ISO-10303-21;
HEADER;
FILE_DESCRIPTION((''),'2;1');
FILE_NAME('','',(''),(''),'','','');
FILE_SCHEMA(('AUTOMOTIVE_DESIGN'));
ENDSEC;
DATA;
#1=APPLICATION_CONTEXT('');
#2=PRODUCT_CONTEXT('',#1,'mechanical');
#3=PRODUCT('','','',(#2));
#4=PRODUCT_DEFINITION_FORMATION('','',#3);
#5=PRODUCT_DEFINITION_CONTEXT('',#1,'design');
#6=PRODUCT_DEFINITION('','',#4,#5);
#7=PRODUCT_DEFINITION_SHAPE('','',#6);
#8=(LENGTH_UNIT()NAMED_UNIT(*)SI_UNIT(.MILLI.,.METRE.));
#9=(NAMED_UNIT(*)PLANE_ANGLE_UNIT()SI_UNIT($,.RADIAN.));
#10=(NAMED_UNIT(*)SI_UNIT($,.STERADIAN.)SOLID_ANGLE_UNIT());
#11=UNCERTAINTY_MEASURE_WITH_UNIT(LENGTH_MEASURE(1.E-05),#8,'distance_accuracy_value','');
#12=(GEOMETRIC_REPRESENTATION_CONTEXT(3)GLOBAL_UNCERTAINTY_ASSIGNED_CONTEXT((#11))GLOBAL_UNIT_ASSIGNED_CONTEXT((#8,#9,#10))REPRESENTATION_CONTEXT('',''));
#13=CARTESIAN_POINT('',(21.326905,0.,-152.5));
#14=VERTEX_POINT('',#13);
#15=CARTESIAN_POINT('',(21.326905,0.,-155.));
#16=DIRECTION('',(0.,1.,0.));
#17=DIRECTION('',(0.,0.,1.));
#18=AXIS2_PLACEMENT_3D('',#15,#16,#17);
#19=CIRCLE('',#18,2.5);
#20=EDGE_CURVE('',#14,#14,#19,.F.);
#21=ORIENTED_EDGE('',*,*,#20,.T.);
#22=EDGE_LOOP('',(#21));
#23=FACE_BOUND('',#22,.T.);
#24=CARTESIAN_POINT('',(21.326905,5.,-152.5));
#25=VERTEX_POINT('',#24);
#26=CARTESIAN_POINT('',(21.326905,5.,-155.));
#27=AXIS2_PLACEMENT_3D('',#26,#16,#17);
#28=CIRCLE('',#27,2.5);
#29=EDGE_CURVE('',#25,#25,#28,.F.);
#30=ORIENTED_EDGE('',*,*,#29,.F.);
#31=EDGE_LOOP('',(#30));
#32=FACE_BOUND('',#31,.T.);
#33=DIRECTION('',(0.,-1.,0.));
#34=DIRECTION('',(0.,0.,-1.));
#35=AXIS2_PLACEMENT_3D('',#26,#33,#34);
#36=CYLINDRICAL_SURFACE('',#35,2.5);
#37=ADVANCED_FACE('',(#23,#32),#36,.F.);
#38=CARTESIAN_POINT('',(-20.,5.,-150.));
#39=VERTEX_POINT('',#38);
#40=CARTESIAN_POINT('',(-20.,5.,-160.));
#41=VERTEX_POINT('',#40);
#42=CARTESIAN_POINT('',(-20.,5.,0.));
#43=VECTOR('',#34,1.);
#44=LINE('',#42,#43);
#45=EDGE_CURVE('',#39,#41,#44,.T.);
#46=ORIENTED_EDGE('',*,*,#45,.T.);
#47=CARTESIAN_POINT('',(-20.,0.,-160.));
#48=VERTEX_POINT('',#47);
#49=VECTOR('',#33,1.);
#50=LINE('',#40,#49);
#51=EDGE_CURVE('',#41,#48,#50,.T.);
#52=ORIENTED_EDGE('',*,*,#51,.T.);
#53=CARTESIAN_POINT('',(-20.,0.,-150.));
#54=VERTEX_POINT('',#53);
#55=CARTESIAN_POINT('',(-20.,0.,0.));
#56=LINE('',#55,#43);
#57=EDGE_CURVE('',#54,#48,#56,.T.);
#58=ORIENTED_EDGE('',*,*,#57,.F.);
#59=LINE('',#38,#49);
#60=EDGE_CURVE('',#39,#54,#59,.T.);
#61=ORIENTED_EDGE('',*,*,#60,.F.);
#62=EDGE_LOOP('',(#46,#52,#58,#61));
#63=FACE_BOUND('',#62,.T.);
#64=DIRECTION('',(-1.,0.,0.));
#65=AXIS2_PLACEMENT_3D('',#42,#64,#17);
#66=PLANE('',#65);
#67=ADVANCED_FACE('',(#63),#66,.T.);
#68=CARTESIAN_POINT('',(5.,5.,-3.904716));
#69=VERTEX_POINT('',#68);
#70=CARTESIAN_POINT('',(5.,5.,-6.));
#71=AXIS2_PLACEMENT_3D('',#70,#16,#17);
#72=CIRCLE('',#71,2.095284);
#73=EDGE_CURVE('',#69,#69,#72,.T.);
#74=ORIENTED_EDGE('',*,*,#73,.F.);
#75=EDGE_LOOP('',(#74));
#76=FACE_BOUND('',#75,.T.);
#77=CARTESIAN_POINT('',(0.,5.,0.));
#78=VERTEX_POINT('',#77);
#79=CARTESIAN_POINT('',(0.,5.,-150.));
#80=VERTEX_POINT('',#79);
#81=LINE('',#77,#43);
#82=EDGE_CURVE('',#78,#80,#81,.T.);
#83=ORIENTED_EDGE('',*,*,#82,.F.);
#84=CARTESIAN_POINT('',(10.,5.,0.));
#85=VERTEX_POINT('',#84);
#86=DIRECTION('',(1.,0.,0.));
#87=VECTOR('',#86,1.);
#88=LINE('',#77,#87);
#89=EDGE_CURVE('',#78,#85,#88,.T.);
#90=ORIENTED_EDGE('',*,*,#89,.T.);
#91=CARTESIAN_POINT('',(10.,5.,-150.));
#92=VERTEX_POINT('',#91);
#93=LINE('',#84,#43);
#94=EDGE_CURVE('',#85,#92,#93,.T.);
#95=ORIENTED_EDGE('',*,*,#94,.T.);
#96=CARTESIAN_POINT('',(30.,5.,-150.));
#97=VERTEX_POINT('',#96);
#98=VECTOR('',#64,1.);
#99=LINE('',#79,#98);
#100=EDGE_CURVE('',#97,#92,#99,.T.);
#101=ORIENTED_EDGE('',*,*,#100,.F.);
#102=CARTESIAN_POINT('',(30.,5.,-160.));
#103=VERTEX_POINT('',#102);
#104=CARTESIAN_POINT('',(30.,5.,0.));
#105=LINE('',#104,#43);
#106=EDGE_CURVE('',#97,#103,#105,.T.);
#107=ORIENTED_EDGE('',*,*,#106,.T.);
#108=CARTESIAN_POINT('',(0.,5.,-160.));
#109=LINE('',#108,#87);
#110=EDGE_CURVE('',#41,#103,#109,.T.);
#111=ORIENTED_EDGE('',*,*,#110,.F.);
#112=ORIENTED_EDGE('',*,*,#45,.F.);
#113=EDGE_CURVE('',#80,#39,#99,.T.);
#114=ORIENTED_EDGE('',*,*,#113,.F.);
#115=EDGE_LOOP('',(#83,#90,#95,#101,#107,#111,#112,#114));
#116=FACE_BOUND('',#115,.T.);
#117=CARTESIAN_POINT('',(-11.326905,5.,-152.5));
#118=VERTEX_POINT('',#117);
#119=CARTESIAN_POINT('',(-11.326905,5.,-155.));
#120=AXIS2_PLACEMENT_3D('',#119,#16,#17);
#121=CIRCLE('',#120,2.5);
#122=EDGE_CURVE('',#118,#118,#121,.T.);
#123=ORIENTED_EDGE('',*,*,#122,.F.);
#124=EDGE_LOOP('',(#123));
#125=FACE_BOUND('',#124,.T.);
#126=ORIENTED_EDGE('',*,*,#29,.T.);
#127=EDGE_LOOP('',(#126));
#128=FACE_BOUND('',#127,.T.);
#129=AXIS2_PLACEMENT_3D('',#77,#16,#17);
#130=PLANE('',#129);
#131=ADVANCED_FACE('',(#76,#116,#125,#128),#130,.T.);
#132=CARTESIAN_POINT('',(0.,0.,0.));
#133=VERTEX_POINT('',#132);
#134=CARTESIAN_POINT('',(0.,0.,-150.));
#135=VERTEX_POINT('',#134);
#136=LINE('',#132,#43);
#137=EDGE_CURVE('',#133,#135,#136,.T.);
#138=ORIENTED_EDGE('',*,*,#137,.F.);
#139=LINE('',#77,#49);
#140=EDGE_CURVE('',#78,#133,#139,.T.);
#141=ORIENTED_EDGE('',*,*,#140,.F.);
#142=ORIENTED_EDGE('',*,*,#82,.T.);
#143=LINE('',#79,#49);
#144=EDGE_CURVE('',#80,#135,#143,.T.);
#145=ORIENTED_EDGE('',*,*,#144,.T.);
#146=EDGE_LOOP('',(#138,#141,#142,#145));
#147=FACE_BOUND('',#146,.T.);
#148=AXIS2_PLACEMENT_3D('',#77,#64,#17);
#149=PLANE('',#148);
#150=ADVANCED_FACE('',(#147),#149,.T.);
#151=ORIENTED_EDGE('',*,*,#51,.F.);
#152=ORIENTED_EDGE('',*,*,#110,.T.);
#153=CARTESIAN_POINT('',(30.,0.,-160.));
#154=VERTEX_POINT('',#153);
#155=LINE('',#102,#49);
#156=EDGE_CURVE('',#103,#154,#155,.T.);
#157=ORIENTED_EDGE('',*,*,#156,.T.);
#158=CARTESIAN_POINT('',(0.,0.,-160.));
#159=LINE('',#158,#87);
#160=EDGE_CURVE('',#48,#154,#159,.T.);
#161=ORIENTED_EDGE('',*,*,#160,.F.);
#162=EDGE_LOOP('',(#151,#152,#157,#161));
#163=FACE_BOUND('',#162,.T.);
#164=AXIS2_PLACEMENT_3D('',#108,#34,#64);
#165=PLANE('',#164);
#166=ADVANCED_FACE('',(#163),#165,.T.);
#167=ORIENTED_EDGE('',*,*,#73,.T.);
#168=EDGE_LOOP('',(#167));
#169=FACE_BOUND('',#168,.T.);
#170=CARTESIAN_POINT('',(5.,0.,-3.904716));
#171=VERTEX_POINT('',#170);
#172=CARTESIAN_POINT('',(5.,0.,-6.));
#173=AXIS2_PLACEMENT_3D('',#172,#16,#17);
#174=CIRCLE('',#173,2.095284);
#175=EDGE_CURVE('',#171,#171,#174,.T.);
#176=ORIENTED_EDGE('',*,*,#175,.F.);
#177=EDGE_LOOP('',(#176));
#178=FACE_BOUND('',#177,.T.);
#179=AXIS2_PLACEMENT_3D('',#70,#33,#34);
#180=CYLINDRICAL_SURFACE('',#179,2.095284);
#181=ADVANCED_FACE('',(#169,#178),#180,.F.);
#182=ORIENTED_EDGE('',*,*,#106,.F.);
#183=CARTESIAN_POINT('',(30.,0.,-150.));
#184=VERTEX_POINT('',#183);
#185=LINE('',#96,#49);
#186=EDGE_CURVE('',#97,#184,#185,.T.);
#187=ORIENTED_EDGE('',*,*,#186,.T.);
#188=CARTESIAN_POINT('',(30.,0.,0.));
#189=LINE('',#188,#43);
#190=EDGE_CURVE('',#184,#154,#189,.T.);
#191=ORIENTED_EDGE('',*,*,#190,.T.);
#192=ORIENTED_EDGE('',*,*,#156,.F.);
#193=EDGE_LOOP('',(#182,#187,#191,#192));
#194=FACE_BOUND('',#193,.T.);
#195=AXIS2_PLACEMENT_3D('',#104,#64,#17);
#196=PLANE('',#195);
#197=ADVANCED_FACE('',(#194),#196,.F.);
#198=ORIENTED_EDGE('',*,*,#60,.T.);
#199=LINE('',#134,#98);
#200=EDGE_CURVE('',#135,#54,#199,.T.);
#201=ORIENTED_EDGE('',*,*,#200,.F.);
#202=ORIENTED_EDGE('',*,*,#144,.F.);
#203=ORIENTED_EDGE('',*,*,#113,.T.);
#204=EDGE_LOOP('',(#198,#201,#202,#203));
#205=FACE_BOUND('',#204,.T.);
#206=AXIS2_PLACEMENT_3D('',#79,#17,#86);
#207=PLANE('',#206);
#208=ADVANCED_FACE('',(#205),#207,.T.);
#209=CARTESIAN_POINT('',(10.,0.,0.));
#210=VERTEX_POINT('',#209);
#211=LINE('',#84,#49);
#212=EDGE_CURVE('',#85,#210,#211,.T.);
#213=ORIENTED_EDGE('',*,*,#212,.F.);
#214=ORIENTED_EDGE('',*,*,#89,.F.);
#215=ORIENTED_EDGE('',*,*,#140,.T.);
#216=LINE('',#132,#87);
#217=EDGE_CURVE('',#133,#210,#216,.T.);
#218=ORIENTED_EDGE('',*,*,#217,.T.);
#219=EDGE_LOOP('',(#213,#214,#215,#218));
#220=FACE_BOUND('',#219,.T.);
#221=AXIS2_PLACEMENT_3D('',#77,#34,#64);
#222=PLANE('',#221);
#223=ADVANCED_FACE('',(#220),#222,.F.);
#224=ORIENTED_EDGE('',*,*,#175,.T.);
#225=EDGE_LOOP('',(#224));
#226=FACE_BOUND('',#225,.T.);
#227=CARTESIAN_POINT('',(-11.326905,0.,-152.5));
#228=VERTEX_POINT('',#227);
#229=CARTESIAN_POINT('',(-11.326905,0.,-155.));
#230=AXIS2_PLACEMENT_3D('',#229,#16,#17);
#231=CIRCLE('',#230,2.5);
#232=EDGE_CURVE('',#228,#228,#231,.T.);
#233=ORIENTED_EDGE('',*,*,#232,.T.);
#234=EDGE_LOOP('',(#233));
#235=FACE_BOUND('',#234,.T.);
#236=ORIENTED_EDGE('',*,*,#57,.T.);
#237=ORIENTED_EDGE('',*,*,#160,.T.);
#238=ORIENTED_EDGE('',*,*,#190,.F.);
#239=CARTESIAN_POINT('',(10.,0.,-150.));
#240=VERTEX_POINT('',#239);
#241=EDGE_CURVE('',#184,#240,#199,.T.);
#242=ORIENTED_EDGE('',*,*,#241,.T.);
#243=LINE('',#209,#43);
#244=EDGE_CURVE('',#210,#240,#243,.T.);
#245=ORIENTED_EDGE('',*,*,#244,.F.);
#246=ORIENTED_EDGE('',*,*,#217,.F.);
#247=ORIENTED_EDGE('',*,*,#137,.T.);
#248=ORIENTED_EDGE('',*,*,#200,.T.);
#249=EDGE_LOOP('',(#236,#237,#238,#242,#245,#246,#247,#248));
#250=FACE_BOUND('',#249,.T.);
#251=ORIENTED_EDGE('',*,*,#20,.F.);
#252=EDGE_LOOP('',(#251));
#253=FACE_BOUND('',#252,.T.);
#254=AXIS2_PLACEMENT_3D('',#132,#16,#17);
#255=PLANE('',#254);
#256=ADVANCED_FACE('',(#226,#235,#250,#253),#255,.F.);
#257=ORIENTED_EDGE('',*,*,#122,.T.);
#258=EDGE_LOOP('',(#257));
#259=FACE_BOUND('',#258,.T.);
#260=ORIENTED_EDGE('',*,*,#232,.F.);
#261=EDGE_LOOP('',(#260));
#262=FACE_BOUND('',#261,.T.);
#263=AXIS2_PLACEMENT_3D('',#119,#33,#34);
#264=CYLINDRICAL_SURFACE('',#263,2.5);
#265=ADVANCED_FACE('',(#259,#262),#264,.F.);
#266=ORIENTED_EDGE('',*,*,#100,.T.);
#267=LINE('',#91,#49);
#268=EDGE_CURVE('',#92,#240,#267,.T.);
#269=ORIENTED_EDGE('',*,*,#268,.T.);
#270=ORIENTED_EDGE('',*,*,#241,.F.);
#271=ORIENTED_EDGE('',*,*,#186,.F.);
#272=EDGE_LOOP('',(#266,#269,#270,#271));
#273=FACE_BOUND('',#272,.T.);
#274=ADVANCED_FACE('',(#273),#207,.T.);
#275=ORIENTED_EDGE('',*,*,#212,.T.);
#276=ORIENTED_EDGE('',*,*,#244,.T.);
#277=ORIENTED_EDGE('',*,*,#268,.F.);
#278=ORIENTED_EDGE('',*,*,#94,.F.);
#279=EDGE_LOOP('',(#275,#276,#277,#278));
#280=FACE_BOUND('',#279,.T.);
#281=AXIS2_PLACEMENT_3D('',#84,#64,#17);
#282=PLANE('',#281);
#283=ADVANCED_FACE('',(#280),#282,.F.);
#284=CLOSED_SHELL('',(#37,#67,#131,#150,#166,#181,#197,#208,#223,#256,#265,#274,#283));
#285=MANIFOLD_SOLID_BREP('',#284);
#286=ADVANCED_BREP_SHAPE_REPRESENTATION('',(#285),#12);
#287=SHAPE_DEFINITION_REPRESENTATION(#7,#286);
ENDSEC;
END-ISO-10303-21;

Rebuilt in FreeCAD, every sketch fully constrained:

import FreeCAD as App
import Part
import Sketcher

V = App.Vector


def add_polygon(sketch, points):
    """Adds a closed chain of lines whose ends are joined by coincident constraints."""
    first, n = sketch.GeometryCount, len(points)
    for a, b in zip(points, points[1:] + points[:1]):
        sketch.addGeometry(Part.LineSegment(App.Vector(*a, 0), App.Vector(*b, 0)), False)
    for i in range(n):
        sketch.addConstraint(Sketcher.Constraint("Coincident", first + i, 2, first + (i + 1) % n, 1))

doc = App.newDocument("Part")
params = doc.addObject("Spreadsheet::Sheet", "Params")
for row, (alias, value) in enumerate([
    ("sketch1_diameter", "5 mm"),
    ("sketch1_width", "10 mm"),
    ("sketch1_width2", "20 mm"),
    ("sketch1_height", "150 mm"),
    ("pad1_length", "5 mm"),
], start=1):
    params.set(f"A{row}", alias)
    params.set(f"B{row}", "=" + value)
    params.setAlias(f"B{row}", alias)

body = doc.addObject("PartDesign::Body", "Body")

sketch1 = body.newObject("Sketcher::SketchObject", "Sketch")
sketch1.AttachmentSupport = (doc.getObject("XZ_Plane"), [""])
sketch1.MapMode = "FlatFace"
add_polygon(sketch1, [(0, -150), (0, 0), (10, 0), (10, -150), (30, -150), (30, -160), (-20, -160), (-20, -150)])
sketch1.addGeometry(Part.Circle(V(5, -6, 0), V(0, 0, 1), 2.1), False)
sketch1.addGeometry(Part.Circle(V(21.3, -155, 0), V(0, 0, 1), 2.5), False)
sketch1.addGeometry(Part.Circle(V(-11.3, -155, 0), V(0, 0, 1), 2.5), False)
sketch1.addConstraint(Sketcher.Constraint("Vertical", 0))
sketch1.addConstraint(Sketcher.Constraint("Horizontal", 1))
sketch1.addConstraint(Sketcher.Constraint("Vertical", 2))
sketch1.addConstraint(Sketcher.Constraint("Horizontal", 3))
sketch1.addConstraint(Sketcher.Constraint("Vertical", 4))
sketch1.addConstraint(Sketcher.Constraint("Horizontal", 5))
sketch1.addConstraint(Sketcher.Constraint("Vertical", 6))
sketch1.addConstraint(Sketcher.Constraint("Horizontal", 7))
sketch1.addConstraint(Sketcher.Constraint("Coincident", 0, 2, -1, 1))
sketch1.addConstraint(Sketcher.Constraint("Equal", 9, 10))
sketch1.addConstraint(Sketcher.Constraint("Horizontal", 9, 3, 10, 3))
sketch1.addConstraint(Sketcher.Constraint("Horizontal", 3, 2, 6, 2))
sketch1.addConstraint(Sketcher.Constraint("Equal", 3, 7))
sketch1.addConstraint(Sketcher.Constraint("Equal", 1, 4))
sketch1.addConstraint(Sketcher.Constraint("Diameter", 9, 5.0))
sketch1.addConstraint(Sketcher.Constraint("DistanceX", 1, 1, 1, 2, 10.0))
sketch1.addConstraint(Sketcher.Constraint("DistanceX", 3, 1, 3, 2, 20.0))
sketch1.addConstraint(Sketcher.Constraint("DistanceY", 0, 1, 0, 2, 150.0))
sketch1.addConstraint(Sketcher.Constraint("DistanceX", -1, 1, 8, 3, 5.0))
sketch1.addConstraint(Sketcher.Constraint("DistanceY", 8, 3, -1, 1, 6.0))
sketch1.addConstraint(Sketcher.Constraint("DistanceY", 9, 3, -1, 1, 155.0))
sketch1.addConstraint(Sketcher.Constraint("Diameter", 8, 4.190568))
sketch1.addConstraint(Sketcher.Constraint("DistanceX", 10, 3, 9, 3, 32.653811))
sketch1.addConstraint(Sketcher.Constraint("DistanceX", -1, 1, 9, 3, 21.326905))
sketch1.setExpression("Constraints[22]", "Params.sketch1_diameter")
sketch1.setExpression("Constraints[23]", "Params.sketch1_width")
sketch1.setExpression("Constraints[24]", "Params.sketch1_width2")
sketch1.setExpression("Constraints[25]", "Params.sketch1_height")
pad1 = body.newObject("PartDesign::Pad", "Pad")
pad1.Profile = sketch1
pad1.setExpression("Length", "Params.pad1_length")
pad1.Reversed = True

doc.recompute()
